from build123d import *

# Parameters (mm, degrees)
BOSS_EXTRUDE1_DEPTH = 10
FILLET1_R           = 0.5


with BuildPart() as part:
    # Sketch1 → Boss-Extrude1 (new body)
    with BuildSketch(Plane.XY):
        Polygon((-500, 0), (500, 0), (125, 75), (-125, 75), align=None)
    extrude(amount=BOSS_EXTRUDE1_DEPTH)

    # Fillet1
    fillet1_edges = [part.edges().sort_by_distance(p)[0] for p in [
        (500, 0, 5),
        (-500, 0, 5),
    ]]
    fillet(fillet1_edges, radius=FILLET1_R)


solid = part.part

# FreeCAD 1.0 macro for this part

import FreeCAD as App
import Part
import Sketcher
from FreeCAD import Vector
Q = App.Units.Quantity


def edges_at(feature, points):
    """Names of the edges that pass closest to the given points."""
    edges = feature.Shape.Edges
    near = lambda p: min(range(len(edges)), key=lambda i: edges[i].distToShape(Part.Vertex(*p))[0])
    return sorted({f"Edge{near(p) + 1}" for p in points})


def add_polygon(sketch, points):
    """Adds a closed chain of lines whose ends are joined by coincident constraints."""
    first, n = sketch.GeometryCount, len(points)
    for a, b in zip(points, points[1:] + points[:1]):
        sketch.addGeometry(Part.LineSegment(App.Vector(*a, 0), App.Vector(*b, 0)), False)
    for i in range(n):
        sketch.addConstraint(Sketcher.Constraint("Coincident", first + i, 2, first + (i + 1) % n, 1))

doc = App.newDocument("Part")
body = doc.addObject("PartDesign::Body", "Body")

sketch1 = doc.addObject("Sketcher::SketchObject", "Sketch")
body.addObject(sketch1)
sketch1.AttachmentSupport = (doc.XY_Plane, [""])
sketch1.MapMode = "FlatFace"
add_polygon(sketch1, [(-500, 0), (500, 0), (125, 75), (-125, 75)])
sketch1.addConstraint(Sketcher.Constraint("Horizontal", 0))
sketch1.addConstraint(Sketcher.Constraint("Horizontal", 2))
sketch1.addConstraint(Sketcher.Constraint("Symmetric", 0, 2, 3, 2, -1, 1))
sketch1.addConstraint(Sketcher.Constraint("Equal", 1, 3))
sketch1.addConstraint(Sketcher.Constraint("DistanceX", 0, 1, 0, 2, Q("1000 mm")))
sketch1.addConstraint(Sketcher.Constraint("DistanceX", 2, 2, 2, 1, Q("250 mm")))
sketch1.addConstraint(Sketcher.Constraint("DistanceY", -1, 1, 1, 2, Q("75 mm")))
pad1 = doc.addObject("PartDesign::Pad", "Pad")
body.addObject(pad1)
pad1.Profile = sketch1
pad1.Length = 10
doc.recompute()

fillet = doc.addObject("PartDesign::Fillet", "Fillet")
body.addObject(fillet)
fillet.Base = (pad1, edges_at(pad1, [(500, 0, 5), (-500, 0, 5)]))
fillet.Radius = 0.5

doc.recompute()
